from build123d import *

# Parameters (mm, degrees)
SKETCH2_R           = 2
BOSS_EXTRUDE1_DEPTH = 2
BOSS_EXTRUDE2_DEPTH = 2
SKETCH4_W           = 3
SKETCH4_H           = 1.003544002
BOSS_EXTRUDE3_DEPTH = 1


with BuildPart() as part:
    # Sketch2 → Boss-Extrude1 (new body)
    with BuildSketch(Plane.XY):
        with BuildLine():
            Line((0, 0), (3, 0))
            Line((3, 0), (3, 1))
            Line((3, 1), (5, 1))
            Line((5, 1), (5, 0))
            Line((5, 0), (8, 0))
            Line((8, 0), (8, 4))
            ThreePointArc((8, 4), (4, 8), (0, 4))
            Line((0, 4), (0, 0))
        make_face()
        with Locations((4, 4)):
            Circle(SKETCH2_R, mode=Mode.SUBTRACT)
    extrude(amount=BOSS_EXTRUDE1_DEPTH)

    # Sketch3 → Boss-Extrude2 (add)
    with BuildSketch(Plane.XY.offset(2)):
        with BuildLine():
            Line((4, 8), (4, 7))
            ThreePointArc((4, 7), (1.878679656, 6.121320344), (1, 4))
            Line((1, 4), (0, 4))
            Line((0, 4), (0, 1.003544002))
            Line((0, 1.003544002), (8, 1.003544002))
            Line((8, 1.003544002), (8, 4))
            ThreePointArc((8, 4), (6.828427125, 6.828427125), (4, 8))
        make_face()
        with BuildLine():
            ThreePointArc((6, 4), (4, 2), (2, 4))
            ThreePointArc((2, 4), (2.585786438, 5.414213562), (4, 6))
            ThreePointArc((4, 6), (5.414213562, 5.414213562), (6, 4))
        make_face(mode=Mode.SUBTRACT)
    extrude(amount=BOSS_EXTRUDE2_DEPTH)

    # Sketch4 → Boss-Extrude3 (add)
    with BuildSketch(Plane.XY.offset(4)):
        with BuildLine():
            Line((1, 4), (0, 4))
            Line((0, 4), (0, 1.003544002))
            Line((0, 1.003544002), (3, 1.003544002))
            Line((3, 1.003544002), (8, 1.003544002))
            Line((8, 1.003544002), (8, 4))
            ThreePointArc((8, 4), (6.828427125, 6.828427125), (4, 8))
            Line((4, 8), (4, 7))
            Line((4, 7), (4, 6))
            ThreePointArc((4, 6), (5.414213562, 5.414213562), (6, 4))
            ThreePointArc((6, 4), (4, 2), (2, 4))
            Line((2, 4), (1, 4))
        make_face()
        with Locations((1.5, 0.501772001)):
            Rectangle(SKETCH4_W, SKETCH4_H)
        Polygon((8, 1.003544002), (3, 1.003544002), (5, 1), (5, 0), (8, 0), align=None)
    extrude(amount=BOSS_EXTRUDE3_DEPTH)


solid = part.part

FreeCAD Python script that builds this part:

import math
import FreeCAD as App
import Part
import Sketcher
Q = App.Units.Quantity

doc = App.newDocument("Part")
params = doc.addObject("Spreadsheet::Sheet", "Params")
for row, (alias, value) in enumerate([
    ("sketch1_diameter", "4 mm"),
    ("sketch1_radius", "4 mm"),
    ("sketch1_width", "3 mm"),
    ("sketch1_height", "1 mm"),
    ("sketch1_height2", "4 mm"),
    ("pad1_length", "2 mm"),
    ("sketch2_radius", "3 mm"),
    ("sketch2_radius2", "4 mm"),
    ("sketch2_radius3", "2 mm"),
    ("pad2_length", "2 mm"),
    ("sketch3_radius", "4 mm"),
    ("sketch3_radius2", "2 mm"),
    ("sketch3_width", "3 mm"),
    ("sketch3_height", "4 mm"),
    ("sketch3_height2", "1 mm"),
    ("pad3_length", "1 mm"),
], start=1):
    params.set(f"A{row}", alias)
    params.set(f"B{row}", "=" + value)
    params.setAlias(f"B{row}", alias)

body = doc.addObject("PartDesign::Body", "Body")

# Sketch on XY plane
sketch1 = doc.addObject("Sketcher::SketchObject", "Sketch")
body.addObject(sketch1)
sketch1.AttachmentSupport = (doc.XY_Plane, [""])
sketch1.MapMode = "FlatFace"
sketch1.addGeometry(Part.LineSegment(App.Vector(0, 0, 0), App.Vector(3, 0, 0)), False)
sketch1.addGeometry(Part.LineSegment(App.Vector(3, 0, 0), App.Vector(3, 1, 0)), False)
sketch1.addGeometry(Part.LineSegment(App.Vector(3, 1, 0), App.Vector(5, 1, 0)), False)
sketch1.addGeometry(Part.LineSegment(App.Vector(5, 1, 0), App.Vector(5, 0, 0)), False)
sketch1.addGeometry(Part.LineSegment(App.Vector(5, 0, 0), App.Vector(8, 0, 0)), False)
sketch1.addGeometry(Part.LineSegment(App.Vector(8, 0, 0), App.Vector(8, 4, 0)), False)
sketch1.addGeometry(Part.ArcOfCircle(Part.Circle(App.Vector(4, 4, 0), App.Vector(0, 0, 1), 4), math.radians(0), math.radians(180)), False)
sketch1.addGeometry(Part.LineSegment(App.Vector(0, 4, 0), App.Vector(0, 0, 0)), False)
sketch1.addGeometry(Part.Circle(App.Vector(4, 4, 0), App.Vector(0, 0, 1), 2), False)
sketch1.addConstraint(Sketcher.Constraint("Coincident", 0, 2, 1, 1))
sketch1.addConstraint(Sketcher.Constraint("Coincident", 1, 2, 2, 1))
sketch1.addConstraint(Sketcher.Constraint("Coincident", 2, 2, 3, 1))
sketch1.addConstraint(Sketcher.Constraint("Coincident", 3, 2, 4, 1))
sketch1.addConstraint(Sketcher.Constraint("Coincident", 4, 2, 5, 1))
sketch1.addConstraint(Sketcher.Constraint("Tangent", 5, 2, 6, 1))
sketch1.addConstraint(Sketcher.Constraint("Tangent", 6, 2, 7, 1))
sketch1.addConstraint(Sketcher.Constraint("Coincident", 7, 2, 0, 1))
sketch1.addConstraint(Sketcher.Constraint("Horizontal", 0))
sketch1.addConstraint(Sketcher.Constraint("Vertical", 1))
sketch1.addConstraint(Sketcher.Constraint("Horizontal", 2))
sketch1.addConstraint(Sketcher.Constraint("Vertical", 3))
sketch1.addConstraint(Sketcher.Constraint("Horizontal", 4))
sketch1.addConstraint(Sketcher.Constraint("Vertical", 5))
sketch1.addConstraint(Sketcher.Constraint("Vertical", 7))
sketch1.addConstraint(Sketcher.Constraint("Coincident", 7, 2, -1, 1))
sketch1.addConstraint(Sketcher.Constraint("Coincident", 8, 3, 6, 3))
sketch1.addConstraint(Sketcher.Constraint("PointOnObject", 3, 2, -1))
sketch1.addConstraint(Sketcher.Constraint("Equal", 0, 4))
sketch1.addConstraint(Sketcher.Constraint("Diameter", 8, Q("4 mm")))
sketch1.addConstraint(Sketcher.Constraint("Radius", 6, Q("4 mm")))
sketch1.addConstraint(Sketcher.Constraint("DistanceX", 0, 1, 0, 2, Q("3 mm")))
sketch1.addConstraint(Sketcher.Constraint("DistanceY", 1, 1, 1, 2, Q("1 mm")))
sketch1.addConstraint(Sketcher.Constraint("DistanceY", 5, 1, 5, 2, Q("4 mm")))
sketch1.setExpression("Constraints[19]", "Params.sketch1_diameter")
sketch1.setExpression("Constraints[20]", "Params.sketch1_radius")
sketch1.setExpression("Constraints[21]", "Params.sketch1_width")
sketch1.setExpression("Constraints[22]", "Params.sketch1_height")
sketch1.setExpression("Constraints[23]", "Params.sketch1_height2")
pad1 = doc.addObject("PartDesign::Pad", "Pad")
body.addObject(pad1)
pad1.Profile = sketch1
pad1.setExpression("Length", "Params.pad1_length")

# Sketch on XY plane
sketch2 = doc.addObject("Sketcher::SketchObject", "Sketch001")
body.addObject(sketch2)
sketch2.AttachmentSupport = (doc.XY_Plane, [""])
sketch2.MapMode = "FlatFace"
sketch2.AttachmentOffset = App.Placement(App.Vector(0, 0, 2), App.Rotation())
sketch2.addGeometry(Part.LineSegment(App.Vector(4, 8, 0), App.Vector(4, 7, 0)), False)
sketch2.addGeometry(Part.ArcOfCircle(Part.Circle(App.Vector(4, 4, 0), App.Vector(0, 0, 1), 3), math.radians(90), math.radians(180)), False)
sketch2.addGeometry(Part.LineSegment(App.Vector(1, 4, 0), App.Vector(0, 4, 0)), False)
sketch2.addGeometry(Part.LineSegment(App.Vector(0, 4, 0), App.Vector(0, 1, 0)), False)
sketch2.addGeometry(Part.LineSegment(App.Vector(0, 1, 0), App.Vector(8, 1, 0)), False)
sketch2.addGeometry(Part.LineSegment(App.Vector(8, 1, 0), App.Vector(8, 4, 0)), False)
sketch2.addGeometry(Part.ArcOfCircle(Part.Circle(App.Vector(4, 4, 0), App.Vector(0, 0, 1), 4), math.radians(0), math.radians(90)), False)
sketch2.addGeometry(Part.ArcOfCircle(Part.Circle(App.Vector(4, 4, 0), App.Vector(0, 0, 1), 2), math.radians(0), math.radians(90)), False)
sketch2.addGeometry(Part.ArcOfCircle(Part.Circle(App.Vector(4, 4, 0), App.Vector(0, 0, 1), 2), math.radians(180), math.radians(360)), False)
sketch2.addGeometry(Part.ArcOfCircle(Part.Circle(App.Vector(4, 4, 0), App.Vector(0, 0, 1), 2), math.radians(90), math.radians(180)), False)
sketch2.addConstraint(Sketcher.Constraint("Coincident", 0, 2, 1, 1))
sketch2.addConstraint(Sketcher.Constraint("Coincident", 1, 2, 2, 1))
sketch2.addConstraint(Sketcher.Constraint("Coincident", 2, 2, 3, 1))
sketch2.addConstraint(Sketcher.Constraint("Coincident", 3, 2, 4, 1))
sketch2.addConstraint(Sketcher.Constraint("Coincident", 4, 2, 5, 1))
sketch2.addConstraint(Sketcher.Constraint("Tangent", 5, 2, 6, 1))
sketch2.addConstraint(Sketcher.Constraint("Coincident", 6, 2, 0, 1))
sketch2.addConstraint(Sketcher.Constraint("Tangent", 7, 1, 8, 2))
sketch2.addConstraint(Sketcher.Constraint("Tangent", 8, 1, 9, 2))
sketch2.addConstraint(Sketcher.Constraint("Tangent", 9, 1, 7, 2))
sketch2.addConstraint(Sketcher.Constraint("Vertical", 0))
sketch2.addConstraint(Sketcher.Constraint("Horizontal", 2))
sketch2.addConstraint(Sketcher.Constraint("Vertical", 3))
sketch2.addConstraint(Sketcher.Constraint("Horizontal", 4))
sketch2.addConstraint(Sketcher.Constraint("Vertical", 5))
sketch2.addConstraint(Sketcher.Constraint("Coincident", 6, 3, 1, 3))
sketch2.addConstraint(Sketcher.Constraint("Coincident", 7, 3, 1, 3))
sketch2.addConstraint(Sketcher.Constraint("PointOnObject", 2, 2, -2))
sketch2.addConstraint(Sketcher.Constraint("Horizontal", 9, 3, 1, 2))
sketch2.addConstraint(Sketcher.Constraint("Horizontal", 5, 2, 7, 1))
sketch2.addConstraint(Sketcher.Constraint("Horizontal", 7, 1, 8, 1))
sketch2.addConstraint(Sketcher.Constraint("Vertical", 9, 3, 0, 2))
sketch2.addConstraint(Sketcher.Constraint("Vertical", 6, 2, 9, 1))
sketch2.addConstraint(Sketcher.Constraint("Equal", 2, 0))
sketch2.addConstraint(Sketcher.Constraint("Radius", 1, Q("3 mm")))
sketch2.addConstraint(Sketcher.Constraint("Radius", 6, Q("4 mm")))
sketch2.addConstraint(Sketcher.Constraint("Radius", 7, Q("2 mm")))
sketch2.addConstraint(Sketcher.Constraint("DistanceY", -1, 1, 1, 3, Q("4 mm")))
sketch2.addConstraint(Sketcher.Constraint("DistanceY", 3, 2, 3, 1, Q("2.996456 mm")))
sketch2.setExpression("Constraints[24]", "Params.sketch2_radius")
sketch2.setExpression("Constraints[25]", "Params.sketch2_radius2")
sketch2.setExpression("Constraints[26]", "Params.sketch2_radius3")
pad2 = doc.addObject("PartDesign::Pad", "Pad001")
body.addObject(pad2)
pad2.Profile = sketch2
pad2.setExpression("Length", "Params.pad2_length")

# Sketch on XY plane
sketch3 = doc.addObject("Sketcher::SketchObject", "Sketch002")
body.addObject(sketch3)
sketch3.AttachmentSupport = (doc.XY_Plane, [""])
sketch3.MapMode = "FlatFace"
sketch3.AttachmentOffset = App.Placement(App.Vector(0, 0, 4), App.Rotation())
sketch3.addGeometry(Part.LineSegment(App.Vector(0, 4, 0), App.Vector(0, 0, 0)), False)
sketch3.addGeometry(Part.LineSegment(App.Vector(0, 0, 0), App.Vector(3, 0, 0)), False)
sketch3.addGeometry(Part.LineSegment(App.Vector(3, 0, 0), App.Vector(3, 1, 0)), False)
sketch3.addGeometry(Part.LineSegment(App.Vector(3, 1, 0), App.Vector(5, 1, 0)), False)
sketch3.addGeometry(Part.LineSegment(App.Vector(5, 1, 0), App.Vector(5, 0, 0)), False)
sketch3.addGeometry(Part.LineSegment(App.Vector(5, 0, 0), App.Vector(8, 0, 0)), False)
sketch3.addGeometry(Part.LineSegment(App.Vector(8, 0, 0), App.Vector(8, 4, 0)), False)
sketch3.addGeometry(Part.ArcOfCircle(Part.Circle(App.Vector(4, 4, 0), App.Vector(0, 0, 1), 4), math.radians(0), math.radians(90)), False)
sketch3.addGeometry(Part.LineSegment(App.Vector(4, 8, 0), App.Vector(4, 6, 0)), False)
sketch3.addGeometry(Part.ArcOfCircle(Part.Circle(App.Vector(4, 4, 0), App.Vector(0, 0, 1), 2), math.radians(0), math.radians(90)), False)
sketch3.addGeometry(Part.ArcOfCircle(Part.Circle(App.Vector(4, 4, 0), App.Vector(0, 0, 1), 2), math.radians(180), math.radians(360)), False)
sketch3.addGeometry(Part.LineSegment(App.Vector(2, 4, 0), App.Vector(0, 4, 0)), False)
sketch3.addConstraint(Sketcher.Constraint("Coincident", 0, 2, 1, 1))
sketch3.addConstraint(Sketcher.Constraint("Coincident", 1, 2, 2, 1))
sketch3.addConstraint(Sketcher.Constraint("Coincident", 2, 2, 3, 1))
sketch3.addConstraint(Sketcher.Constraint("Coincident", 3, 2, 4, 1))
sketch3.addConstraint(Sketcher.Constraint("Coincident", 4, 2, 5, 1))
sketch3.addConstraint(Sketcher.Constraint("Coincident", 5, 2, 6, 1))
sketch3.addConstraint(Sketcher.Constraint("Tangent", 6, 2, 7, 1))
sketch3.addConstraint(Sketcher.Constraint("Coincident", 7, 2, 8, 1))
sketch3.addConstraint(Sketcher.Constraint("Coincident", 8, 2, 9, 2))
sketch3.addConstraint(Sketcher.Constraint("Tangent", 9, 1, 10, 2))
sketch3.addConstraint(Sketcher.Constraint("Coincident", 10, 1, 11, 1))
sketch3.addConstraint(Sketcher.Constraint("Coincident", 11, 2, 0, 1))
sketch3.addConstraint(Sketcher.Constraint("Vertical", 0))
sketch3.addConstraint(Sketcher.Constraint("Horizontal", 1))
sketch3.addConstraint(Sketcher.Constraint("Vertical", 2))
sketch3.addConstraint(Sketcher.Constraint("Vertical", 4))
sketch3.addConstraint(Sketcher.Constraint("Horizontal", 5))
sketch3.addConstraint(Sketcher.Constraint("Vertical", 6))
sketch3.addConstraint(Sketcher.Constraint("Vertical", 8))
sketch3.addConstraint(Sketcher.Constraint("Horizontal", 11))
sketch3.addConstraint(Sketcher.Constraint("Coincident", 0, 2, -1, 1))
sketch3.addConstraint(Sketcher.Constraint("Coincident", 9, 3, 7, 3))
sketch3.addConstraint(Sketcher.Constraint("Equal", 9, 10))
sketch3.addConstraint(Sketcher.Constraint("PointOnObject", 4, 2, -1))
sketch3.addConstraint(Sketcher.Constraint("Horizontal", 6, 2, 9, 1))
sketch3.addConstraint(Sketcher.Constraint("Horizontal", 9, 1, 10, 1))
sketch3.addConstraint(Sketcher.Constraint("Vertical", 10, 3, 7, 2))
sketch3.addConstraint(Sketcher.Constraint("Equal", 1, 5))
sketch3.addConstraint(Sketcher.Constraint("Equal", 11, 8))
sketch3.addConstraint(Sketcher.Constraint("Radius", 7, Q("4 mm")))
sketch3.addConstraint(Sketcher.Constraint("Radius", 9, Q("2 mm")))
sketch3.addConstraint(Sketcher.Constraint("DistanceX", 1, 1, 1, 2, Q("3 mm")))
sketch3.addConstraint(Sketcher.Constraint("DistanceY", 0, 2, 0, 1, Q("4 mm")))
sketch3.addConstraint(Sketcher.Constraint("DistanceY", 4, 2, 4, 1, Q("1 mm")))
sketch3.addConstraint(Sketcher.Constraint("DistanceY", 2, 1, 2, 2, Q("1.003544 mm")))
sketch3.setExpression("Constraints[29]", "Params.sketch3_radius")
sketch3.setExpression("Constraints[30]", "Params.sketch3_radius2")
sketch3.setExpression("Constraints[31]", "Params.sketch3_width")
sketch3.setExpression("Constraints[32]", "Params.sketch3_height")
sketch3.setExpression("Constraints[33]", "Params.sketch3_height2")
pad3 = doc.addObject("PartDesign::Pad", "Pad002")
body.addObject(pad3)
pad3.Profile = sketch3
pad3.setExpression("Length", "Params.pad3_length")

doc.recompute()
